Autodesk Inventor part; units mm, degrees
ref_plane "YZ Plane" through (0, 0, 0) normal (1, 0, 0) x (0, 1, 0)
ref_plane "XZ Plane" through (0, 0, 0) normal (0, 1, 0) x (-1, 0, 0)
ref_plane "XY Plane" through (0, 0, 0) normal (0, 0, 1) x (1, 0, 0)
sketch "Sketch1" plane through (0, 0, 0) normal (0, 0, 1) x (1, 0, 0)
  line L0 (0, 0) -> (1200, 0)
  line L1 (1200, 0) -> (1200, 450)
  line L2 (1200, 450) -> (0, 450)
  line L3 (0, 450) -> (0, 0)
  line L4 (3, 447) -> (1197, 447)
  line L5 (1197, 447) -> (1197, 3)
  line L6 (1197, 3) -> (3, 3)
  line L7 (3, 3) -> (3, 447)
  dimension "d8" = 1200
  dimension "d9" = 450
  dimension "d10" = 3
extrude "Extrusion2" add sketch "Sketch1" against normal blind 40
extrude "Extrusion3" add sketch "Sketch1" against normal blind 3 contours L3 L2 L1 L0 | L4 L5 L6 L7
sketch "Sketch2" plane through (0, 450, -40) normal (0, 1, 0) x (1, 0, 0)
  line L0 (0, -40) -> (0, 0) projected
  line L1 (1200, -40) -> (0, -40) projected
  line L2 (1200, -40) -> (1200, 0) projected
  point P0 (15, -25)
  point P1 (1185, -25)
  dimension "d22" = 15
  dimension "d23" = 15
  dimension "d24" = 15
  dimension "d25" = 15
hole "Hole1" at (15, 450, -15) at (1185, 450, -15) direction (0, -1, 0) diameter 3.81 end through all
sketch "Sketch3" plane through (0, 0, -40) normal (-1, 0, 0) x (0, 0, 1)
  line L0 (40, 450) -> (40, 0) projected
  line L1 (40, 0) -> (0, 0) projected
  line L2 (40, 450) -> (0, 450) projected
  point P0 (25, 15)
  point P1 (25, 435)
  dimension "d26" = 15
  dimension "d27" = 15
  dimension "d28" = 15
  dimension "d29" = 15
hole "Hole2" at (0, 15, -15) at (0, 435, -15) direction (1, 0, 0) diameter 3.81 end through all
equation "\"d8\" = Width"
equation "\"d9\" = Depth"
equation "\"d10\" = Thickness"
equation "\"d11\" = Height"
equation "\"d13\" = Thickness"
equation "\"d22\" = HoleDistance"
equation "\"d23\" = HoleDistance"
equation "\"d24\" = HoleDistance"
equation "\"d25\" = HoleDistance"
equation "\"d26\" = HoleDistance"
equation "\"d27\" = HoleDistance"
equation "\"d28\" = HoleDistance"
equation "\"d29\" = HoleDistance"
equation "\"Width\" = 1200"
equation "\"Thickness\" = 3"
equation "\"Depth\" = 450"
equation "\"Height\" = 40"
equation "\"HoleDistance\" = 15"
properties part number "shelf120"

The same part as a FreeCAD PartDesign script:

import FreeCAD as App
import Part
import Sketcher
Q = App.Units.Quantity

doc = App.newDocument("Part")
body = doc.addObject("PartDesign::Body", "Body")

# Sketch on XY plane
sketch1 = doc.addObject("Sketcher::SketchObject", "Sketch")
body.addObject(sketch1)
sketch1.AttachmentSupport = (doc.XY_Plane, [""])
sketch1.MapMode = "FlatFace"
sketch1.addGeometry([
    Part.LineSegment(App.Vector(0, 450, 0), App.Vector(0, 0, 0)),  # 0
    Part.LineSegment(App.Vector(0, 0, 0), App.Vector(1200, 0, 0)),  # 1
    Part.LineSegment(App.Vector(1200, 0, 0), App.Vector(1200, 450, 0)),  # 2
    Part.LineSegment(App.Vector(1200, 450, 0), App.Vector(0, 450, 0)),  # 3
    Part.LineSegment(App.Vector(3, 3, 0), App.Vector(3, 447, 0)),  # 4
    Part.LineSegment(App.Vector(3, 447, 0), App.Vector(1197, 447, 0)),  # 5
    Part.LineSegment(App.Vector(1197, 447, 0), App.Vector(1197, 3, 0)),  # 6
    Part.LineSegment(App.Vector(1197, 3, 0), App.Vector(3, 3, 0)),  # 7
], False)
sketch1.addConstraint([
    Sketcher.Constraint("Coincident", 0, 2, 1, 1),
    Sketcher.Constraint("Coincident", 1, 2, 2, 1),
    Sketcher.Constraint("Coincident", 2, 2, 3, 1),
    Sketcher.Constraint("Coincident", 3, 2, 0, 1),
    Sketcher.Constraint("Coincident", 4, 2, 5, 1),
    Sketcher.Constraint("Coincident", 5, 2, 6, 1),
    Sketcher.Constraint("Coincident", 6, 2, 7, 1),
    Sketcher.Constraint("Coincident", 7, 2, 4, 1),
    Sketcher.Constraint("Vertical", 0),
    Sketcher.Constraint("Horizontal", 1),
    Sketcher.Constraint("Vertical", 2),
    Sketcher.Constraint("Horizontal", 3),
    Sketcher.Constraint("Vertical", 4),
    Sketcher.Constraint("Horizontal", 5),
    Sketcher.Constraint("Vertical", 6),
    Sketcher.Constraint("Horizontal", 7),
    Sketcher.Constraint("Coincident", 0, 2, -1, 1),
    Sketcher.Constraint("DistanceX", 1, 1, 1, 2, Q("1200 mm")),
    Sketcher.Constraint("DistanceY", 0, 2, 0, 1, Q("450 mm")),
    Sketcher.Constraint("DistanceX", -1, 1, 4, 2, Q("3 mm")),
    Sketcher.Constraint("DistanceY", -1, 1, 6, 2, Q("3 mm")),
    Sketcher.Constraint("DistanceY", 4, 2, 3, 2, Q("3 mm")),
    Sketcher.Constraint("DistanceX", 5, 2, 2, 2, Q("3 mm")),
])
pad1 = doc.addObject("PartDesign::Pad", "Pad")
body.addObject(pad1)
pad1.Profile = sketch1
pad1.Length = 40
pad1.Reversed = True

# Sketch on XY plane
sketch2 = doc.addObject("Sketcher::SketchObject", "Sketch001")
body.addObject(sketch2)
sketch2.AttachmentSupport = (doc.XY_Plane, [""])
sketch2.MapMode = "FlatFace"
sketch2.addGeometry([
    Part.LineSegment(App.Vector(0, 450, 0), App.Vector(0, 0, 0)),
    Part.LineSegment(App.Vector(0, 0, 0), App.Vector(1200, 0, 0)),
    Part.LineSegment(App.Vector(1200, 0, 0), App.Vector(1200, 450, 0)),
    Part.LineSegment(App.Vector(1200, 450, 0), App.Vector(0, 450, 0)),
], False)
sketch2.addConstraint([
    Sketcher.Constraint("Coincident", 0, 2, 1, 1),
    Sketcher.Constraint("Coincident", 1, 2, 2, 1),
    Sketcher.Constraint("Coincident", 2, 2, 3, 1),
    Sketcher.Constraint("Coincident", 3, 2, 0, 1),
    Sketcher.Constraint("Vertical", 0),
    Sketcher.Constraint("Horizontal", 1),
    Sketcher.Constraint("Vertical", 2),
    Sketcher.Constraint("Horizontal", 3),
    Sketcher.Constraint("Coincident", 0, 2, -1, 1),
    Sketcher.Constraint("DistanceX", 1, 1, 1, 2, Q("1200 mm")),
    Sketcher.Constraint("DistanceY", 0, 2, 0, 1, Q("450 mm")),
])
pad2 = doc.addObject("PartDesign::Pad", "Pad001")
body.addObject(pad2)
pad2.Profile = sketch2
pad2.Length = 3
pad2.Reversed = True

# Sketch on XZ plane
sketch3 = doc.addObject("Sketcher::SketchObject", "Sketch002")
body.addObject(sketch3)
sketch3.AttachmentSupport = (doc.XZ_Plane, [""])
sketch3.MapMode = "FlatFace"
sketch3.AttachmentOffset = App.Placement(App.Vector(0, 0, -450), App.Rotation())
sketch3.addGeometry([
    Part.Circle(App.Vector(15, -15, 0), App.Vector(0, 0, 1), 1.905),
    Part.Circle(App.Vector(1185, -15, 0), App.Vector(0, 0, 1), 1.905),
], False)
sketch3.addConstraint([
    Sketcher.Constraint("Equal", 0, 1),
    Sketcher.Constraint("Horizontal", 0, 3, 1, 3),
    Sketcher.Constraint("Diameter", 0, Q("3.81 mm")),
    Sketcher.Constraint("DistanceX", -1, 1, 0, 3, Q("15 mm")),
    Sketcher.Constraint("DistanceY", 0, 3, -1, 1, Q("15 mm")),
    Sketcher.Constraint("DistanceX", -1, 1, 1, 3, Q("1185 mm")),
])
doc.recompute()
hole = doc.addObject("PartDesign::Hole", "Hole")
body.addObject(hole)
hole.Profile = sketch3
hole.ThreadType = "None"
hole.Diameter = 3.81
hole.DepthType = "ThroughAll"
hole.Reversed = True

# Sketch on YZ plane
sketch4 = doc.addObject("Sketcher::SketchObject", "Sketch003")
body.addObject(sketch4)
sketch4.AttachmentSupport = (doc.YZ_Plane, [""])
sketch4.MapMode = "FlatFace"
sketch4.addGeometry([
    Part.Circle(App.Vector(15, -15, 0), App.Vector(0, 0, 1), 1.905),
    Part.Circle(App.Vector(435, -15, 0), App.Vector(0, 0, 1), 1.905),
], False)
sketch4.addConstraint([
    Sketcher.Constraint("Equal", 0, 1),
    Sketcher.Constraint("Horizontal", 0, 3, 1, 3),
    Sketcher.Constraint("Diameter", 0, Q("3.81 mm")),
    Sketcher.Constraint("DistanceX", -1, 1, 0, 3, Q("15 mm")),
    Sketcher.Constraint("DistanceY", 0, 3, -1, 1, Q("15 mm")),
    Sketcher.Constraint("DistanceX", -1, 1, 1, 3, Q("435 mm")),
])
doc.recompute()
hole2 = doc.addObject("PartDesign::Hole", "Hole001")
body.addObject(hole2)
hole2.Profile = sketch4
hole2.ThreadType = "None"
hole2.Diameter = 3.81
hole2.DepthType = "ThroughAll"
hole2.Reversed = True

doc.recompute()
